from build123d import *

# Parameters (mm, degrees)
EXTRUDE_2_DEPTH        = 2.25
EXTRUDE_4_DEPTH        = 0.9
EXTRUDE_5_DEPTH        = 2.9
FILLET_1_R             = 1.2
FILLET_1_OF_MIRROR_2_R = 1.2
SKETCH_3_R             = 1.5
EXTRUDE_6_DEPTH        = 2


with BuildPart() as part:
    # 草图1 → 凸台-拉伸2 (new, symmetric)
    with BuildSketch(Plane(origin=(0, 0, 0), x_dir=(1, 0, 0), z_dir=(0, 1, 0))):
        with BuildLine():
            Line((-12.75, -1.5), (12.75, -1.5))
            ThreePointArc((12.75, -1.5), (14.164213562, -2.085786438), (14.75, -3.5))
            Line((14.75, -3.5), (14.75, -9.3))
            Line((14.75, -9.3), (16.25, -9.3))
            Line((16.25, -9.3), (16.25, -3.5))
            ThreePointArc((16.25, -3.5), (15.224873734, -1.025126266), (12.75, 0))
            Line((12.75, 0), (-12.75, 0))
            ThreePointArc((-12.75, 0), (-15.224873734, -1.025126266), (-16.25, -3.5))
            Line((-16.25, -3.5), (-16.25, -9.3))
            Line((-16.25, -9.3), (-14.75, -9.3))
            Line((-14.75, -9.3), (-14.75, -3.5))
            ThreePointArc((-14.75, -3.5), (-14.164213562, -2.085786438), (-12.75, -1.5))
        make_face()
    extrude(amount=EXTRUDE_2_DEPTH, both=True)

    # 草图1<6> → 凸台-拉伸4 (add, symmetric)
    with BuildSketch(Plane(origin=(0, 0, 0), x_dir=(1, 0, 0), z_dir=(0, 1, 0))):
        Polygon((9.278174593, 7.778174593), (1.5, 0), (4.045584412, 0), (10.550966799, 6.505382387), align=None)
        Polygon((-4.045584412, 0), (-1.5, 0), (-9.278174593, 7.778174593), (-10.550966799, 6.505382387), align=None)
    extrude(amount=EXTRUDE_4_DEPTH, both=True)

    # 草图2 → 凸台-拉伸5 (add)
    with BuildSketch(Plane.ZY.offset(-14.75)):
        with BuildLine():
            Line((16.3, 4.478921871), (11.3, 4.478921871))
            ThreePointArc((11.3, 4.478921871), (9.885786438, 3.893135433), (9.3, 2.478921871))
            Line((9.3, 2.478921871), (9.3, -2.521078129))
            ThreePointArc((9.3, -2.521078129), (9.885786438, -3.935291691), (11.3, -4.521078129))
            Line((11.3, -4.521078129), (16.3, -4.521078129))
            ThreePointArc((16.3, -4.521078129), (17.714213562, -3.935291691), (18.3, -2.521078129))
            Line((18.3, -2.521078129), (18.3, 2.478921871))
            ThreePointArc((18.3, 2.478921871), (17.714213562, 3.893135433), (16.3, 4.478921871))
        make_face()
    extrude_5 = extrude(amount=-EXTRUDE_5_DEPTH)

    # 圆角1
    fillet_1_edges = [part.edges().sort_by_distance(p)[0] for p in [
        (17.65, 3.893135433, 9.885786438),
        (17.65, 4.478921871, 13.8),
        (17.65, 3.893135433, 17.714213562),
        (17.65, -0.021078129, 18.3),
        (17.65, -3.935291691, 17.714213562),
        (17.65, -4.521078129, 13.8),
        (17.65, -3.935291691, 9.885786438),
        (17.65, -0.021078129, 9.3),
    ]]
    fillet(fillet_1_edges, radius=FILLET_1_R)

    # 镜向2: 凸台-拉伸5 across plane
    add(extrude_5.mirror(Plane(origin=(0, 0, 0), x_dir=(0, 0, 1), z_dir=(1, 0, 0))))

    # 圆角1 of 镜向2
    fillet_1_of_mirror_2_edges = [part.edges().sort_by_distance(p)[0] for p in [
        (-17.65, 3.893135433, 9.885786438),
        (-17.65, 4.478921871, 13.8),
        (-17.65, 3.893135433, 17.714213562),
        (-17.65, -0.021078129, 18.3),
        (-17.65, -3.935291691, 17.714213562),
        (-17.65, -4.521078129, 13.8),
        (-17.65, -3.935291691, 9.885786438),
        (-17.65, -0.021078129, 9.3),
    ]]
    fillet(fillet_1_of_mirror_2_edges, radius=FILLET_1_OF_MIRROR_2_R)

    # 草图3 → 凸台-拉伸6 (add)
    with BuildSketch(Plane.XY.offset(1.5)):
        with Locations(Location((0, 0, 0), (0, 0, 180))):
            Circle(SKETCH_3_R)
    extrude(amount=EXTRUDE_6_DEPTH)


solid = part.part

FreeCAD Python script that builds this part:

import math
import FreeCAD as App
import Part
import Sketcher

V = App.Vector


def edges_at(feature, points):
    """Names of the edges that pass closest to the given points."""
    edges = feature.Shape.Edges
    near = lambda p: min(range(len(edges)), key=lambda i: edges[i].distToShape(Part.Vertex(*p))[0])
    return sorted({f"Edge{near(p) + 1}" for p in points})

doc = App.newDocument("Part")
body = doc.addObject("PartDesign::Body", "Body")

sketch1 = body.newObject("Sketcher::SketchObject", "Sketch")
sketch1.AttachmentSupport = (doc.getObject("XZ_Plane"), [""])
sketch1.MapMode = "FlatFace"
sketch1.addGeometry([
    Part.LineSegment(V(-12.8, 1.5, 0), V(12.8, 1.5, 0)),
    Part.ArcOfCircle(Part.Circle(V(12.7, 3.5, 0), V(0, 0, 1), 2), math.radians(-90), math.radians(0)),
    Part.LineSegment(V(14.8, 3.5, 0), V(14.8, 9.3, 0)),
    Part.LineSegment(V(14.8, 9.3, 0), V(16.2, 9.3, 0)),
    Part.LineSegment(V(16.2, 9.3, 0), V(16.2, 3.5, 0)),
    Part.ArcOfCircle(Part.Circle(V(12.7, 3.5, 0), V(0, 0, 1), 3.5), math.radians(-90), math.radians(0)),
    Part.LineSegment(V(12.8, 0, 0), V(-12.8, 0, 0)),
    Part.ArcOfCircle(Part.Circle(V(-12.7, 3.5, 0), V(0, 0, 1), 3.5), math.radians(-180), math.radians(-90)),
    Part.LineSegment(V(-16.2, 3.5, 0), V(-16.2, 9.3, 0)),
    Part.LineSegment(V(-16.2, 9.3, 0), V(-14.8, 9.3, 0)),
    Part.LineSegment(V(-14.8, 9.3, 0), V(-14.8, 3.5, 0)),
    Part.ArcOfCircle(Part.Circle(V(-12.7, 3.5, 0), V(0, 0, 1), 2), math.radians(-180), math.radians(-90)),
], False)
sketch1.addConstraint([
    Sketcher.Constraint("Tangent", 0, 2, 1, 1),
    Sketcher.Constraint("Tangent", 1, 2, 2, 1),
    Sketcher.Constraint("Coincident", 2, 2, 3, 1),
    Sketcher.Constraint("Coincident", 3, 2, 4, 1),
    Sketcher.Constraint("Tangent", 4, 2, 5, 2),
    Sketcher.Constraint("Tangent", 5, 1, 6, 1),
    Sketcher.Constraint("Tangent", 6, 2, 7, 2),
    Sketcher.Constraint("Tangent", 7, 1, 8, 1),
    Sketcher.Constraint("Coincident", 8, 2, 9, 1),
    Sketcher.Constraint("Coincident", 9, 2, 10, 1),
    Sketcher.Constraint("Tangent", 10, 2, 11, 1),
    Sketcher.Constraint("Tangent", 11, 2, 0, 1),
    Sketcher.Constraint("Horizontal", 0),
    Sketcher.Constraint("Vertical", 2),
    Sketcher.Constraint("Horizontal", 3),
    Sketcher.Constraint("Vertical", 4),
    Sketcher.Constraint("Horizontal", 6),
    Sketcher.Constraint("Vertical", 8),
    Sketcher.Constraint("Horizontal", 9),
    Sketcher.Constraint("Vertical", 10),
    Sketcher.Constraint("Coincident", 5, 3, 1, 3),
    Sketcher.Constraint("Coincident", 11, 3, 7, 3),
    Sketcher.Constraint("Equal", 5, 7),
    Sketcher.Constraint("Symmetric", 5, 1, 6, 2, -1, 1),
    Sketcher.Constraint("Horizontal", 3, 2, 8, 2),
    Sketcher.Constraint("Radius", 1, 2.0),
    Sketcher.Constraint("Radius", 5, 3.5),
    Sketcher.Constraint("DistanceX", 0, 1, 0, 2, 25.5),
    Sketcher.Constraint("DistanceY", 2, 1, 2, 2, 5.8),
])
pad1 = body.newObject("PartDesign::Pad", "Pad")
pad1.Profile = sketch1
pad1.Length = 4.5
pad1.Midplane = True

sketch2 = body.newObject("Sketcher::SketchObject", "Sketch001")
sketch2.AttachmentSupport = (doc.getObject("XZ_Plane"), [""])
sketch2.MapMode = "FlatFace"
sketch2.addGeometry([
    Part.LineSegment(V(9.3, -7.8, 0), V(1.5, 0, 0)),
    Part.LineSegment(V(1.5, 0, 0), V(4, 0, 0)),
    Part.LineSegment(V(4, 0, 0), V(10.6, -6.5, 0)),
    Part.LineSegment(V(10.6, -6.5, 0), V(9.3, -7.8, 0)),
    Part.LineSegment(V(-4, 0, 0), V(-1.5, 0, 0)),
    Part.LineSegment(V(-1.5, 0, 0), V(-9.3, -7.8, 0)),
    Part.LineSegment(V(-9.3, -7.8, 0), V(-10.6, -6.5, 0)),
    Part.LineSegment(V(-10.6, -6.5, 0), V(-4, 0, 0)),
], False)
sketch2.addConstraint([
    Sketcher.Constraint("Coincident", 0, 2, 1, 1),
    Sketcher.Constraint("Coincident", 1, 2, 2, 1),
    Sketcher.Constraint("Coincident", 2, 2, 3, 1),
    Sketcher.Constraint("Coincident", 3, 2, 0, 1),
    Sketcher.Constraint("Coincident", 4, 2, 5, 1),
    Sketcher.Constraint("Coincident", 5, 2, 6, 1),
    Sketcher.Constraint("Coincident", 6, 2, 7, 1),
    Sketcher.Constraint("Coincident", 7, 2, 4, 1),
    Sketcher.Constraint("Horizontal", 1),
    Sketcher.Constraint("Horizontal", 4),
    Sketcher.Constraint("Symmetric", 0, 2, 4, 2, -1, 1),
    Sketcher.Constraint("Symmetric", 3, 2, 5, 2, -2),
    Sketcher.Constraint("Symmetric", 2, 2, 6, 2, -2),
    Sketcher.Constraint("Symmetric", 1, 2, 7, 2, -2),
    Sketcher.Constraint("Parallel", 0, 2),
    Sketcher.Constraint("Perpendicular", 2, 3),
    Sketcher.Constraint("Parallel", 3, 5),
    Sketcher.Constraint("Distance", 0, 11.0),
    Sketcher.Constraint("DistanceX", 4, 2, 0, 2, 3.0),
    Sketcher.Constraint("Distance", 2, 9.2),
])
pad2 = body.newObject("PartDesign::Pad", "Pad001")
pad2.Profile = sketch2
pad2.Length = 1.8
pad2.Midplane = True

sketch3 = body.newObject("Sketcher::SketchObject", "Sketch002")
sketch3.AttachmentSupport = (doc.getObject("YZ_Plane"), [""])
sketch3.MapMode = "FlatFace"
sketch3.AttachmentOffset = App.Placement(V(0, 0, 14.75), App.Rotation())
sketch3.addGeometry([
    Part.LineSegment(V(4.5, 16.3, 0), V(4.5, 11.3, 0)),
    Part.ArcOfCircle(Part.Circle(V(2.5, 11.3, 0), V(0, 0, 1), 2), math.radians(-90), math.radians(0)),
    Part.LineSegment(V(2.5, 9.3, 0), V(-2.5, 9.3, 0)),
    Part.ArcOfCircle(Part.Circle(V(-2.5, 11.3, 0), V(0, 0, 1), 2), math.radians(-180), math.radians(-90)),
    Part.LineSegment(V(-4.5, 11.3, 0), V(-4.5, 16.3, 0)),
    Part.ArcOfCircle(Part.Circle(V(-2.5, 16.3, 0), V(0, 0, 1), 2), math.radians(90), math.radians(180)),
    Part.LineSegment(V(-2.5, 18.3, 0), V(2.5, 18.3, 0)),
    Part.ArcOfCircle(Part.Circle(V(2.5, 16.3, 0), V(0, 0, 1), 2), math.radians(0), math.radians(90)),
], False)
sketch3.addConstraint([
    Sketcher.Constraint("Tangent", 0, 2, 1, 2),
    Sketcher.Constraint("Tangent", 1, 1, 2, 1),
    Sketcher.Constraint("Tangent", 2, 2, 3, 2),
    Sketcher.Constraint("Tangent", 3, 1, 4, 1),
    Sketcher.Constraint("Tangent", 4, 2, 5, 2),
    Sketcher.Constraint("Tangent", 5, 1, 6, 1),
    Sketcher.Constraint("Tangent", 6, 2, 7, 2),
    Sketcher.Constraint("Tangent", 7, 1, 0, 1),
    Sketcher.Constraint("Vertical", 0),
    Sketcher.Constraint("Horizontal", 2),
    Sketcher.Constraint("Vertical", 4),
    Sketcher.Constraint("Horizontal", 6),
    Sketcher.Constraint("Equal", 1, 3),
    Sketcher.Constraint("Equal", 3, 5),
    Sketcher.Constraint("Equal", 5, 7),
    Sketcher.Constraint("Equal", 6, 0),
    Sketcher.Constraint("Radius", 1, 2.0),
    Sketcher.Constraint("DistanceX", 2, 2, 2, 1, 5.0),
    Sketcher.Constraint("DistanceY", -1, 1, 1, 3, 11.3),
    Sketcher.Constraint("DistanceX", -1, 1, 1, 3, 2.478922),
])
pad3 = body.newObject("PartDesign::Pad", "Pad002")
pad3.Profile = sketch3
pad3.Length = 2.9
doc.recompute()

fillet = body.newObject("PartDesign::Fillet", "Fillet")
fillet.Base = (pad3, edges_at(pad3, [
    (17.65, 3.893, 9.886),
    (17.65, 4.479, 13.8),
    (17.65, 3.893, 17.714),
    (17.65, -0.021, 18.3),
    (17.65, -3.935, 17.714),
    (17.65, -4.521, 13.8),
    (17.65, -3.935, 9.886),
    (17.65, -0.021, 9.3),
]))
fillet.Radius = 1.2
doc.recompute()

mirrored = body.newObject("PartDesign::Mirrored", "Mirrored")
mirrored.Originals = [pad3]
mirrored.MirrorPlane = (doc.getObject("YZ_Plane"), [""])
body.Tip = mirrored
doc.recompute()

fillet2 = body.newObject("PartDesign::Fillet", "Fillet001")
fillet2.Base = (mirrored, edges_at(mirrored, [
    (-17.65, 3.893, 9.886),
    (-17.65, 4.479, 13.8),
    (-17.65, 3.893, 17.714),
    (-17.65, -0.021, 18.3),
    (-17.65, -3.935, 17.714),
    (-17.65, -4.521, 13.8),
    (-17.65, -3.935, 9.886),
    (-17.65, -0.021, 9.3),
]))
fillet2.Radius = 1.2

sketch4 = body.newObject("Sketcher::SketchObject", "Sketch003")
sketch4.AttachmentSupport = (doc.getObject("XY_Plane"), [""])
sketch4.MapMode = "FlatFace"
sketch4.AttachmentOffset = App.Placement(V(0, 0, 1.5), App.Rotation())
sketch4.addGeometry(Part.Circle(V(0, 0, 0), V(0, 0, 1), 1.5), False)
sketch4.addConstraint([
    Sketcher.Constraint("Coincident", 0, 3, -1, 1),
    Sketcher.Constraint("Diameter", 0, 3.0),
])
pad4 = body.newObject("PartDesign::Pad", "Pad003")
pad4.Profile = sketch4
pad4.Length = 2

doc.recompute()
